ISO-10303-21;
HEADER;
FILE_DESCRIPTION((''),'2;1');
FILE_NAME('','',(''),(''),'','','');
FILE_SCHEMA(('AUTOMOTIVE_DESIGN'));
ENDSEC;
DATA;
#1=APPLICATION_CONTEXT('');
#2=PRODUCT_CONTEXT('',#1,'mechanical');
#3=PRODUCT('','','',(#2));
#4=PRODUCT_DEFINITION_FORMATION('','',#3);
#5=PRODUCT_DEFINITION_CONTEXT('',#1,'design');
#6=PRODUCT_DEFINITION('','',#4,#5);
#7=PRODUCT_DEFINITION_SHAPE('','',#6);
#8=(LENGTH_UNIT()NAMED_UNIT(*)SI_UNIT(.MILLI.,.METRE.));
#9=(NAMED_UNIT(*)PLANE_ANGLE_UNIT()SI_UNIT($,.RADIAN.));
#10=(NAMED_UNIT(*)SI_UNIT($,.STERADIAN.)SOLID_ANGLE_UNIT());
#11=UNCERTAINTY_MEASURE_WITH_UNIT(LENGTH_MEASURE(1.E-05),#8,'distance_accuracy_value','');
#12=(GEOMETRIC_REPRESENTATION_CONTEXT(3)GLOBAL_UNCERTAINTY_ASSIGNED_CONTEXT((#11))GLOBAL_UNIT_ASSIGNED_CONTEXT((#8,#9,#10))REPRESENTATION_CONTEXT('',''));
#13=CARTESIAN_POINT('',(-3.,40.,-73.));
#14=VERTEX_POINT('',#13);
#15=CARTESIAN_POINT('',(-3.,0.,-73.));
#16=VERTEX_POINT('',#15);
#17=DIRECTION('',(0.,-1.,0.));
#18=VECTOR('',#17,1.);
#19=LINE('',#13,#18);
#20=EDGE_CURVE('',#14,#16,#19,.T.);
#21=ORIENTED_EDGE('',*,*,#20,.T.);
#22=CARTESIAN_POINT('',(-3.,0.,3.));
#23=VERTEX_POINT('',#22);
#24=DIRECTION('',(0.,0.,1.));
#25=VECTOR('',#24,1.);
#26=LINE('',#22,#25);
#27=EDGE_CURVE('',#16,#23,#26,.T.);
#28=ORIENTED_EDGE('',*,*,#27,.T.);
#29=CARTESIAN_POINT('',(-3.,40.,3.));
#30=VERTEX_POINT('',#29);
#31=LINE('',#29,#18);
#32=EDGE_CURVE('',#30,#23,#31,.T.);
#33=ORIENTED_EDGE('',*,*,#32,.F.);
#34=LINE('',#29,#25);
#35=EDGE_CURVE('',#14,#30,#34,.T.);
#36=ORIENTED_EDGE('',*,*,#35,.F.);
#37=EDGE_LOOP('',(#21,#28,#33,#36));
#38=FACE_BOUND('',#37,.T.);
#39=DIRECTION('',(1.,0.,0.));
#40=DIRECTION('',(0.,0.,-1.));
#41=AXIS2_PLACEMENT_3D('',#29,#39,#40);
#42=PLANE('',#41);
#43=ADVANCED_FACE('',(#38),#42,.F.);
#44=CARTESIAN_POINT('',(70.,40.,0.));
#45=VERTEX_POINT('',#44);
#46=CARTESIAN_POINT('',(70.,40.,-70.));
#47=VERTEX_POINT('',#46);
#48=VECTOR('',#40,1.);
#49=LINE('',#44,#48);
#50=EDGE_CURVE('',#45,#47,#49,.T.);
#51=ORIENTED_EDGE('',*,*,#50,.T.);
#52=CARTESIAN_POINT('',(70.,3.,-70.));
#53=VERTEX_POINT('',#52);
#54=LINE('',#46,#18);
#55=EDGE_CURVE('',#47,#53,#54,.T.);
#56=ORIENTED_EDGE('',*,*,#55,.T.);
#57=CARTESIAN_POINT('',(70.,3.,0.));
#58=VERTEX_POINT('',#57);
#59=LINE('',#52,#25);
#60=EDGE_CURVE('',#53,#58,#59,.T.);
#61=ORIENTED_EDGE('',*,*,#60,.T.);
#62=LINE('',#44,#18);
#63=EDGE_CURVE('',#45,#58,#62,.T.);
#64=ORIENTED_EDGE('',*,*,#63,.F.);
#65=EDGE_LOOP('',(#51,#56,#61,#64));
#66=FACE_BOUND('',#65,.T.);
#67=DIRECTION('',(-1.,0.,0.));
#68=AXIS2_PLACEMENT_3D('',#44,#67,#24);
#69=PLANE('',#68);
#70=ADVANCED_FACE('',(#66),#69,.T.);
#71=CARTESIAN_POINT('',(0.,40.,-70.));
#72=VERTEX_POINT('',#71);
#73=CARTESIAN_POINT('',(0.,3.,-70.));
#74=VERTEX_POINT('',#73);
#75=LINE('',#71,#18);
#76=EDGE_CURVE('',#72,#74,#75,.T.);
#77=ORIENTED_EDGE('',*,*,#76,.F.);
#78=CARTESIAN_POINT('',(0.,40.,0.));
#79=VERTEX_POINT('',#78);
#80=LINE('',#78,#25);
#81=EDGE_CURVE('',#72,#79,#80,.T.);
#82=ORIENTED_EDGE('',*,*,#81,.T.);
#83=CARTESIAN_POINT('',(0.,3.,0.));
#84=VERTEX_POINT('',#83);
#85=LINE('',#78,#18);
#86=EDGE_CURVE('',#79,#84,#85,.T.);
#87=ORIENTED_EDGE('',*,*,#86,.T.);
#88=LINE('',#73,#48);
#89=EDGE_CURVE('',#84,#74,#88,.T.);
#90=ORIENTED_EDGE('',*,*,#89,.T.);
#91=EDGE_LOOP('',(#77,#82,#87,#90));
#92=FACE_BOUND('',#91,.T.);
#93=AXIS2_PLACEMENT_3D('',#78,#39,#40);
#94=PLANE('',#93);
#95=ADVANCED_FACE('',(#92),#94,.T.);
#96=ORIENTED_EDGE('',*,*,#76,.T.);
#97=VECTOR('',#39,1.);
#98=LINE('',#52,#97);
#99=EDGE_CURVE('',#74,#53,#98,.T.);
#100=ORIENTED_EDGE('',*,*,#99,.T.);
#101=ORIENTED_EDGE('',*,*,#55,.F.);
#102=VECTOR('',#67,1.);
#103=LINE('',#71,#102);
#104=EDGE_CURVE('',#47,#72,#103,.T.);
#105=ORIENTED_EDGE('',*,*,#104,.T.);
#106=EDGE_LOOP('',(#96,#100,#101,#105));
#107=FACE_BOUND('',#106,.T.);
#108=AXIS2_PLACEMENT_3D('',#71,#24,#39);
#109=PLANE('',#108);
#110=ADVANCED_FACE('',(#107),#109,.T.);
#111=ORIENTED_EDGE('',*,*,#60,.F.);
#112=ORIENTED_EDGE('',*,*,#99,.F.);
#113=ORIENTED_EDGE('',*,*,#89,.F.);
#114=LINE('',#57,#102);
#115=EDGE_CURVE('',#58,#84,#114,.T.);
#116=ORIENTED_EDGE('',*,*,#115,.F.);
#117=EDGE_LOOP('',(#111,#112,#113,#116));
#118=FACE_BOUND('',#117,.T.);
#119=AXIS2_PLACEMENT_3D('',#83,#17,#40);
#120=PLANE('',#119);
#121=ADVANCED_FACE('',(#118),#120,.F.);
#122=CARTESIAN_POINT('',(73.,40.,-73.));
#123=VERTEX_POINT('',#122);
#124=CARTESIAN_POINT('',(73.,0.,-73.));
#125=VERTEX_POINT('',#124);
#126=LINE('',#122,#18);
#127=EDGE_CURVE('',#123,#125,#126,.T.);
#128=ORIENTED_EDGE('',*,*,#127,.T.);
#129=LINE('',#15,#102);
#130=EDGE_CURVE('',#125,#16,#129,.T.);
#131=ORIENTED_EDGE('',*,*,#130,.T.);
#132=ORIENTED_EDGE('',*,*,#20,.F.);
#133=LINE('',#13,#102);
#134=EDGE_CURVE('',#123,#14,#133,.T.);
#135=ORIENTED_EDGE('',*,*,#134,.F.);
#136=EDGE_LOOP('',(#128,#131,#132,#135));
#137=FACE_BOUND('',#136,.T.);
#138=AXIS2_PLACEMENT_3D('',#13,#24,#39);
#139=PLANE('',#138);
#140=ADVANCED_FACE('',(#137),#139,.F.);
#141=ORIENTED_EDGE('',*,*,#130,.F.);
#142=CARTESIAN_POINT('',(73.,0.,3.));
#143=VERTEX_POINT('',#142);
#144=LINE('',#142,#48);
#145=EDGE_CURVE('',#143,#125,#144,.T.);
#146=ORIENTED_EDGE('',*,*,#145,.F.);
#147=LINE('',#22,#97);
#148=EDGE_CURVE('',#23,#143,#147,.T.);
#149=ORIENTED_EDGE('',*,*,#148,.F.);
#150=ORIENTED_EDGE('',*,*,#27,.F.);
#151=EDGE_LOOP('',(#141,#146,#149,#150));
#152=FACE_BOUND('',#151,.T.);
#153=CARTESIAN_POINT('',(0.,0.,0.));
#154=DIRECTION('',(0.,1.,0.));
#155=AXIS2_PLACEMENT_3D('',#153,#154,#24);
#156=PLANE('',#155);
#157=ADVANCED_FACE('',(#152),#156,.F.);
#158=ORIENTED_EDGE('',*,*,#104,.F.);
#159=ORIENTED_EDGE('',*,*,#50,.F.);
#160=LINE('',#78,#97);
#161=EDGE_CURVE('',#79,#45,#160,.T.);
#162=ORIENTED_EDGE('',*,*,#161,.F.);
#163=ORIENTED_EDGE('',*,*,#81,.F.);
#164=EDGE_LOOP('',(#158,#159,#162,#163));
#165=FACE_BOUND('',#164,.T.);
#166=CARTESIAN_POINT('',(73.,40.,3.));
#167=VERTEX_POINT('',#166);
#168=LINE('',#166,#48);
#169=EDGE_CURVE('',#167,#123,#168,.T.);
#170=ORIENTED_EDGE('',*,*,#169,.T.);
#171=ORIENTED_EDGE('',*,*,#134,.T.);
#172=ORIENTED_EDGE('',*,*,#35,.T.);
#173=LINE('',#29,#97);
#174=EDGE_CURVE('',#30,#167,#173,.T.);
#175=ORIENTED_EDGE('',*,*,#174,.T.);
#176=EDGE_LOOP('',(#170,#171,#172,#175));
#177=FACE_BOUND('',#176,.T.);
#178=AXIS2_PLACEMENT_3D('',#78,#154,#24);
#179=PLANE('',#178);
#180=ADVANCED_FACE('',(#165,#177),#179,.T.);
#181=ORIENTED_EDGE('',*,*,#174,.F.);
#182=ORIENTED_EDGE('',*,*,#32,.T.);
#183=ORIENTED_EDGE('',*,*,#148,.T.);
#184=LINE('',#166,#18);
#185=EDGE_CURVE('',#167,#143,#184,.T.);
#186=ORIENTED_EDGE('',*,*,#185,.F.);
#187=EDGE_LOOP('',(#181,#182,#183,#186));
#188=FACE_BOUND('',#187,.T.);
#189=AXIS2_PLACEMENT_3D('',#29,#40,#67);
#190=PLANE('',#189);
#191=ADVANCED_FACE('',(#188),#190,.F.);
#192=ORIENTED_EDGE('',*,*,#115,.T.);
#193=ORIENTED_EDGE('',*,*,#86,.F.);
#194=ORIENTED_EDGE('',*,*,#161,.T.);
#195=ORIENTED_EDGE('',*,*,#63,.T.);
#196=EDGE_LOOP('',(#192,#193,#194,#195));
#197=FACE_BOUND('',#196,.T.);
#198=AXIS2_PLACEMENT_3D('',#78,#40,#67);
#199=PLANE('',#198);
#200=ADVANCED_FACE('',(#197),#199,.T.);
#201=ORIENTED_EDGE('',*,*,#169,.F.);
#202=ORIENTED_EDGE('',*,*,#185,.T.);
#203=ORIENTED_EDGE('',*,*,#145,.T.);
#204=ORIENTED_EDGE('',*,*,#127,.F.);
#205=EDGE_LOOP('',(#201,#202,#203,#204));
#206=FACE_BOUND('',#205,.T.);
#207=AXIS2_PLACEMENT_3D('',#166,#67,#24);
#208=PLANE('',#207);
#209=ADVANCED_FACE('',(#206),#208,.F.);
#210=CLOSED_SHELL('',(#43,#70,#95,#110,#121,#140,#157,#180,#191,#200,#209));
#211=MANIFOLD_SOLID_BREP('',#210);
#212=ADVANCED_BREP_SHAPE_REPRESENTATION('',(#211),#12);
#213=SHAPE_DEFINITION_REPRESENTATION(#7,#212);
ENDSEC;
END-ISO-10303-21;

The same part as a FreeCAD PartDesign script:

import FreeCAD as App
import Part
import Sketcher
from FreeCAD import Vector

doc = App.newDocument("Part")
body = doc.addObject("PartDesign::Body", "Body")

sketch1 = body.newObject("Sketcher::SketchObject", "Sketch")
sketch1.AttachmentSupport = (doc.getObject("XZ_Plane"), [""])
sketch1.MapMode = "FlatFace"
sketch1.addGeometry([
    Part.LineSegment(Vector(-3, -73, 0), Vector(-3, 3, 0)),
    Part.LineSegment(Vector(-3, 3, 0), Vector(73, 3, 0)),
    Part.LineSegment(Vector(73, 3, 0), Vector(73, -73, 0)),
    Part.LineSegment(Vector(73, -73, 0), Vector(-3, -73, 0)),
    Part.LineSegment(Vector(70, 0, 0), Vector(0, 0, 0)),
    Part.LineSegment(Vector(0, 0, 0), Vector(0, -70, 0)),
    Part.LineSegment(Vector(0, -70, 0), Vector(70, -70, 0)),
    Part.LineSegment(Vector(70, -70, 0), Vector(70, 0, 0)),
], False)
sketch1.addConstraint([
    Sketcher.Constraint("Coincident", 0, 2, 1, 1),
    Sketcher.Constraint("Coincident", 1, 2, 2, 1),
    Sketcher.Constraint("Coincident", 2, 2, 3, 1),
    Sketcher.Constraint("Coincident", 3, 2, 0, 1),
    Sketcher.Constraint("Coincident", 4, 2, 5, 1),
    Sketcher.Constraint("Coincident", 5, 2, 6, 1),
    Sketcher.Constraint("Coincident", 6, 2, 7, 1),
    Sketcher.Constraint("Coincident", 7, 2, 4, 1),
    Sketcher.Constraint("Vertical", 0),
    Sketcher.Constraint("Horizontal", 1),
    Sketcher.Constraint("Vertical", 2),
    Sketcher.Constraint("Horizontal", 3),
    Sketcher.Constraint("Horizontal", 4),
    Sketcher.Constraint("Vertical", 5),
    Sketcher.Constraint("Horizontal", 6),
    Sketcher.Constraint("Vertical", 7),
    Sketcher.Constraint("Coincident", 4, 2, -1, 1),
    Sketcher.Constraint("Equal", 3, 0),
    Sketcher.Constraint("Equal", 6, 5),
    Sketcher.Constraint("DistanceX", 1, 1, 1, 2, 76.0),
    Sketcher.Constraint("DistanceX", 4, 2, 4, 1, 70.0),
    Sketcher.Constraint("DistanceX", 0, 2, -1, 1, 3.0),
    Sketcher.Constraint("DistanceY", -1, 1, 0, 2, 3.0),
])
pad1 = body.newObject("PartDesign::Pad", "Pad")
pad1.Profile = sketch1
pad1.Length = 40
pad1.Reversed = True

sketch2 = body.newObject("Sketcher::SketchObject", "Sketch001")
sketch2.AttachmentSupport = (doc.getObject("XZ_Plane"), [""])
sketch2.MapMode = "FlatFace"
sketch2.addGeometry([
    Part.LineSegment(Vector(0, 0, 0), Vector(0, -70, 0)),
    Part.LineSegment(Vector(0, -70, 0), Vector(70, -70, 0)),
    Part.LineSegment(Vector(70, -70, 0), Vector(70, 0, 0)),
    Part.LineSegment(Vector(70, 0, 0), Vector(0, 0, 0)),
], False)
sketch2.addConstraint([
    Sketcher.Constraint("Coincident", 0, 2, 1, 1),
    Sketcher.Constraint("Coincident", 1, 2, 2, 1),
    Sketcher.Constraint("Coincident", 2, 2, 3, 1),
    Sketcher.Constraint("Coincident", 3, 2, 0, 1),
    Sketcher.Constraint("Vertical", 0),
    Sketcher.Constraint("Horizontal", 1),
    Sketcher.Constraint("Vertical", 2),
    Sketcher.Constraint("Horizontal", 3),
    Sketcher.Constraint("Coincident", 3, 2, -1, 1),
    Sketcher.Constraint("Equal", 3, 0),
    Sketcher.Constraint("DistanceX", 1, 1, 1, 2, 70.0),
])
pad2 = body.newObject("PartDesign::Pad", "Pad001")
pad2.Profile = sketch2
pad2.Length = 3
pad2.Reversed = True

doc.recompute()
